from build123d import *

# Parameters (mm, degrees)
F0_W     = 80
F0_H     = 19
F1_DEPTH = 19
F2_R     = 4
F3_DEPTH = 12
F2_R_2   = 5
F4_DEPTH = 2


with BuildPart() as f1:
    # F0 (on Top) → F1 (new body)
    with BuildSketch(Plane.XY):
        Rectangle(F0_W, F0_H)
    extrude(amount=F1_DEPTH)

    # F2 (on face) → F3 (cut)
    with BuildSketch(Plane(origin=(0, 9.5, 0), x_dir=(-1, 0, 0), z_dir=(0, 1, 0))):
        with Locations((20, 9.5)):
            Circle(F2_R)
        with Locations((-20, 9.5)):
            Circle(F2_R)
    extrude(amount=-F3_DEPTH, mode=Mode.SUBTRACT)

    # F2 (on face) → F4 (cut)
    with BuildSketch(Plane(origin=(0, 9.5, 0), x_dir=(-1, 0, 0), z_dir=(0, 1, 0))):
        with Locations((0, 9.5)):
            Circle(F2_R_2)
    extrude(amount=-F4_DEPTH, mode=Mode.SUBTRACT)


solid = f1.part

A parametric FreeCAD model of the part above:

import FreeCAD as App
import Part
import Sketcher

doc = App.newDocument("Part")
body = doc.addObject("PartDesign::Body", "Body")

sketch1 = body.newObject("Sketcher::SketchObject", "Sketch")
sketch1.AttachmentSupport = (doc.getObject("XY_Plane"), [""])
sketch1.MapMode = "FlatFace"
sketch1.addGeometry([
    Part.LineSegment(App.Vector(-40, 10, 0), App.Vector(-40, -10, 0)),
    Part.LineSegment(App.Vector(-40, -10, 0), App.Vector(40, -10, 0)),
    Part.LineSegment(App.Vector(40, -10, 0), App.Vector(40, 10, 0)),
    Part.LineSegment(App.Vector(40, 10, 0), App.Vector(-40, 10, 0)),
], False)
sketch1.addConstraint([
    Sketcher.Constraint("Coincident", 0, 2, 1, 1),
    Sketcher.Constraint("Coincident", 1, 2, 2, 1),
    Sketcher.Constraint("Coincident", 2, 2, 3, 1),
    Sketcher.Constraint("Coincident", 3, 2, 0, 1),
    Sketcher.Constraint("Vertical", 0),
    Sketcher.Constraint("Horizontal", 1),
    Sketcher.Constraint("Vertical", 2),
    Sketcher.Constraint("Horizontal", 3),
    Sketcher.Constraint("Symmetric", 0, 2, 2, 2, -1, 1),
    Sketcher.Constraint("DistanceX", 1, 1, 1, 2, 80.0),
    Sketcher.Constraint("DistanceY", 0, 2, 0, 1, 19.0),
])
pad1 = body.newObject("PartDesign::Pad", "Pad")
pad1.Profile = sketch1
pad1.Length = 19

sketch2 = body.newObject("Sketcher::SketchObject", "Sketch001")
sketch2.AttachmentSupport = (doc.getObject("XZ_Plane"), [""])
sketch2.MapMode = "FlatFace"
sketch2.AttachmentOffset = App.Placement(App.Vector(0, 0, -9.5), App.Rotation())
sketch2.addGeometry([
    Part.Circle(App.Vector(-20, 9.5, 0), App.Vector(0, 0, 1), 4),
    Part.Circle(App.Vector(20, 9.5, 0), App.Vector(0, 0, 1), 4),
], False)
sketch2.addConstraint([
    Sketcher.Constraint("Equal", 0, 1),
    Sketcher.Constraint("Symmetric", 0, 3, 1, 3, -2),
    Sketcher.Constraint("Diameter", 0, 8.0),
    Sketcher.Constraint("DistanceX", 0, 3, -1, 1, 20.0),
    Sketcher.Constraint("DistanceY", -1, 1, 0, 3, 9.5),
])
pocket1 = body.newObject("PartDesign::Pocket", "Pocket")
pocket1.Profile = sketch2
pocket1.Length = 12
pocket1.Reversed = True

sketch3 = body.newObject("Sketcher::SketchObject", "Sketch002")
sketch3.AttachmentSupport = (doc.getObject("XZ_Plane"), [""])
sketch3.MapMode = "FlatFace"
sketch3.AttachmentOffset = App.Placement(App.Vector(0, 0, -9.5), App.Rotation())
sketch3.addGeometry(Part.Circle(App.Vector(0, 10, 0), App.Vector(0, 0, 1), 5), False)
sketch3.addConstraint([
    Sketcher.Constraint("PointOnObject", 0, 3, -2),
    Sketcher.Constraint("Diameter", 0, 10.0),
    Sketcher.Constraint("DistanceY", -1, 1, 0, 3, 9.5),
])
pocket2 = body.newObject("PartDesign::Pocket", "Pocket001")
pocket2.Profile = sketch3
pocket2.Length = 2
pocket2.Reversed = True

doc.recompute()
